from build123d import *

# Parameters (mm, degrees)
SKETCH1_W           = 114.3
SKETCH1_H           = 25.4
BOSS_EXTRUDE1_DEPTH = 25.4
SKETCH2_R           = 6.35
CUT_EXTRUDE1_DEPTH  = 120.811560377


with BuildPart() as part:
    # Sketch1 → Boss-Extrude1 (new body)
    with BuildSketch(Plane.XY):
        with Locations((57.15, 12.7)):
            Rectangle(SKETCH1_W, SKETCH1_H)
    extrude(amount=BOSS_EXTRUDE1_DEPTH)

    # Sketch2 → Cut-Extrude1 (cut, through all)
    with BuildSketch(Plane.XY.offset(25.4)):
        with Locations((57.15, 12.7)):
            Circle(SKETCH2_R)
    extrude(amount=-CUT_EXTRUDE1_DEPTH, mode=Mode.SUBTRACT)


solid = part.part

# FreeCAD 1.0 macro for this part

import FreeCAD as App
import Part
import Sketcher

V = App.Vector
Q = App.Units.Quantity


def add_polygon(sketch, points):
    """Adds a closed chain of lines whose ends are joined by coincident constraints."""
    first, n = sketch.GeometryCount, len(points)
    for a, b in zip(points, points[1:] + points[:1]):
        sketch.addGeometry(Part.LineSegment(App.Vector(*a, 0), App.Vector(*b, 0)), False)
    for i in range(n):
        sketch.addConstraint(Sketcher.Constraint("Coincident", first + i, 2, first + (i + 1) % n, 1))

doc = App.newDocument("Part")
body = doc.addObject("PartDesign::Body", "Body")

sketch1 = body.newObject("Sketcher::SketchObject", "Sketch")
sketch1.AttachmentSupport = (doc.getObject("XY_Plane"), [""])
sketch1.MapMode = "FlatFace"
add_polygon(sketch1, [(0, 25.4), (0, 0), (114.3, 0), (114.3, 25.4)])
sketch1.addConstraint([
    Sketcher.Constraint("Vertical", 0),
    Sketcher.Constraint("Horizontal", 1),
    Sketcher.Constraint("Vertical", 2),
    Sketcher.Constraint("Horizontal", 3),
    Sketcher.Constraint("Coincident", 0, 2, -1, 1),
    Sketcher.Constraint("DistanceY", 0, 2, 0, 1, Q("1 in")),
    Sketcher.Constraint("DistanceX", 1, 1, 1, 2, Q("4.5 in")),
])
pad1 = body.newObject("PartDesign::Pad", "Pad")
pad1.Profile = sketch1
pad1.Length = Q("1 in")

sketch2 = body.newObject("Sketcher::SketchObject", "Sketch001")
sketch2.AttachmentSupport = (doc.getObject("XY_Plane"), [""])
sketch2.MapMode = "FlatFace"
sketch2.AttachmentOffset = App.Placement(V(0, 0, 1 * 25.4), App.Rotation())
sketch2.addGeometry(Part.Circle(V(57.15, 12.7, 0), V(0, 0, 1), 6.35), False)
sketch2.addConstraint([
    Sketcher.Constraint("Diameter", 0, Q("0.5 in")),
    Sketcher.Constraint("DistanceY", -1, 1, 0, 3, Q("0.5 in")),
    Sketcher.Constraint("DistanceX", -1, 1, 0, 3, Q("2.25 in")),
])
pocket1 = body.newObject("PartDesign::Pocket", "Pocket")
pocket1.Profile = sketch2
pocket1.Type = "ThroughAll"

doc.recompute()
